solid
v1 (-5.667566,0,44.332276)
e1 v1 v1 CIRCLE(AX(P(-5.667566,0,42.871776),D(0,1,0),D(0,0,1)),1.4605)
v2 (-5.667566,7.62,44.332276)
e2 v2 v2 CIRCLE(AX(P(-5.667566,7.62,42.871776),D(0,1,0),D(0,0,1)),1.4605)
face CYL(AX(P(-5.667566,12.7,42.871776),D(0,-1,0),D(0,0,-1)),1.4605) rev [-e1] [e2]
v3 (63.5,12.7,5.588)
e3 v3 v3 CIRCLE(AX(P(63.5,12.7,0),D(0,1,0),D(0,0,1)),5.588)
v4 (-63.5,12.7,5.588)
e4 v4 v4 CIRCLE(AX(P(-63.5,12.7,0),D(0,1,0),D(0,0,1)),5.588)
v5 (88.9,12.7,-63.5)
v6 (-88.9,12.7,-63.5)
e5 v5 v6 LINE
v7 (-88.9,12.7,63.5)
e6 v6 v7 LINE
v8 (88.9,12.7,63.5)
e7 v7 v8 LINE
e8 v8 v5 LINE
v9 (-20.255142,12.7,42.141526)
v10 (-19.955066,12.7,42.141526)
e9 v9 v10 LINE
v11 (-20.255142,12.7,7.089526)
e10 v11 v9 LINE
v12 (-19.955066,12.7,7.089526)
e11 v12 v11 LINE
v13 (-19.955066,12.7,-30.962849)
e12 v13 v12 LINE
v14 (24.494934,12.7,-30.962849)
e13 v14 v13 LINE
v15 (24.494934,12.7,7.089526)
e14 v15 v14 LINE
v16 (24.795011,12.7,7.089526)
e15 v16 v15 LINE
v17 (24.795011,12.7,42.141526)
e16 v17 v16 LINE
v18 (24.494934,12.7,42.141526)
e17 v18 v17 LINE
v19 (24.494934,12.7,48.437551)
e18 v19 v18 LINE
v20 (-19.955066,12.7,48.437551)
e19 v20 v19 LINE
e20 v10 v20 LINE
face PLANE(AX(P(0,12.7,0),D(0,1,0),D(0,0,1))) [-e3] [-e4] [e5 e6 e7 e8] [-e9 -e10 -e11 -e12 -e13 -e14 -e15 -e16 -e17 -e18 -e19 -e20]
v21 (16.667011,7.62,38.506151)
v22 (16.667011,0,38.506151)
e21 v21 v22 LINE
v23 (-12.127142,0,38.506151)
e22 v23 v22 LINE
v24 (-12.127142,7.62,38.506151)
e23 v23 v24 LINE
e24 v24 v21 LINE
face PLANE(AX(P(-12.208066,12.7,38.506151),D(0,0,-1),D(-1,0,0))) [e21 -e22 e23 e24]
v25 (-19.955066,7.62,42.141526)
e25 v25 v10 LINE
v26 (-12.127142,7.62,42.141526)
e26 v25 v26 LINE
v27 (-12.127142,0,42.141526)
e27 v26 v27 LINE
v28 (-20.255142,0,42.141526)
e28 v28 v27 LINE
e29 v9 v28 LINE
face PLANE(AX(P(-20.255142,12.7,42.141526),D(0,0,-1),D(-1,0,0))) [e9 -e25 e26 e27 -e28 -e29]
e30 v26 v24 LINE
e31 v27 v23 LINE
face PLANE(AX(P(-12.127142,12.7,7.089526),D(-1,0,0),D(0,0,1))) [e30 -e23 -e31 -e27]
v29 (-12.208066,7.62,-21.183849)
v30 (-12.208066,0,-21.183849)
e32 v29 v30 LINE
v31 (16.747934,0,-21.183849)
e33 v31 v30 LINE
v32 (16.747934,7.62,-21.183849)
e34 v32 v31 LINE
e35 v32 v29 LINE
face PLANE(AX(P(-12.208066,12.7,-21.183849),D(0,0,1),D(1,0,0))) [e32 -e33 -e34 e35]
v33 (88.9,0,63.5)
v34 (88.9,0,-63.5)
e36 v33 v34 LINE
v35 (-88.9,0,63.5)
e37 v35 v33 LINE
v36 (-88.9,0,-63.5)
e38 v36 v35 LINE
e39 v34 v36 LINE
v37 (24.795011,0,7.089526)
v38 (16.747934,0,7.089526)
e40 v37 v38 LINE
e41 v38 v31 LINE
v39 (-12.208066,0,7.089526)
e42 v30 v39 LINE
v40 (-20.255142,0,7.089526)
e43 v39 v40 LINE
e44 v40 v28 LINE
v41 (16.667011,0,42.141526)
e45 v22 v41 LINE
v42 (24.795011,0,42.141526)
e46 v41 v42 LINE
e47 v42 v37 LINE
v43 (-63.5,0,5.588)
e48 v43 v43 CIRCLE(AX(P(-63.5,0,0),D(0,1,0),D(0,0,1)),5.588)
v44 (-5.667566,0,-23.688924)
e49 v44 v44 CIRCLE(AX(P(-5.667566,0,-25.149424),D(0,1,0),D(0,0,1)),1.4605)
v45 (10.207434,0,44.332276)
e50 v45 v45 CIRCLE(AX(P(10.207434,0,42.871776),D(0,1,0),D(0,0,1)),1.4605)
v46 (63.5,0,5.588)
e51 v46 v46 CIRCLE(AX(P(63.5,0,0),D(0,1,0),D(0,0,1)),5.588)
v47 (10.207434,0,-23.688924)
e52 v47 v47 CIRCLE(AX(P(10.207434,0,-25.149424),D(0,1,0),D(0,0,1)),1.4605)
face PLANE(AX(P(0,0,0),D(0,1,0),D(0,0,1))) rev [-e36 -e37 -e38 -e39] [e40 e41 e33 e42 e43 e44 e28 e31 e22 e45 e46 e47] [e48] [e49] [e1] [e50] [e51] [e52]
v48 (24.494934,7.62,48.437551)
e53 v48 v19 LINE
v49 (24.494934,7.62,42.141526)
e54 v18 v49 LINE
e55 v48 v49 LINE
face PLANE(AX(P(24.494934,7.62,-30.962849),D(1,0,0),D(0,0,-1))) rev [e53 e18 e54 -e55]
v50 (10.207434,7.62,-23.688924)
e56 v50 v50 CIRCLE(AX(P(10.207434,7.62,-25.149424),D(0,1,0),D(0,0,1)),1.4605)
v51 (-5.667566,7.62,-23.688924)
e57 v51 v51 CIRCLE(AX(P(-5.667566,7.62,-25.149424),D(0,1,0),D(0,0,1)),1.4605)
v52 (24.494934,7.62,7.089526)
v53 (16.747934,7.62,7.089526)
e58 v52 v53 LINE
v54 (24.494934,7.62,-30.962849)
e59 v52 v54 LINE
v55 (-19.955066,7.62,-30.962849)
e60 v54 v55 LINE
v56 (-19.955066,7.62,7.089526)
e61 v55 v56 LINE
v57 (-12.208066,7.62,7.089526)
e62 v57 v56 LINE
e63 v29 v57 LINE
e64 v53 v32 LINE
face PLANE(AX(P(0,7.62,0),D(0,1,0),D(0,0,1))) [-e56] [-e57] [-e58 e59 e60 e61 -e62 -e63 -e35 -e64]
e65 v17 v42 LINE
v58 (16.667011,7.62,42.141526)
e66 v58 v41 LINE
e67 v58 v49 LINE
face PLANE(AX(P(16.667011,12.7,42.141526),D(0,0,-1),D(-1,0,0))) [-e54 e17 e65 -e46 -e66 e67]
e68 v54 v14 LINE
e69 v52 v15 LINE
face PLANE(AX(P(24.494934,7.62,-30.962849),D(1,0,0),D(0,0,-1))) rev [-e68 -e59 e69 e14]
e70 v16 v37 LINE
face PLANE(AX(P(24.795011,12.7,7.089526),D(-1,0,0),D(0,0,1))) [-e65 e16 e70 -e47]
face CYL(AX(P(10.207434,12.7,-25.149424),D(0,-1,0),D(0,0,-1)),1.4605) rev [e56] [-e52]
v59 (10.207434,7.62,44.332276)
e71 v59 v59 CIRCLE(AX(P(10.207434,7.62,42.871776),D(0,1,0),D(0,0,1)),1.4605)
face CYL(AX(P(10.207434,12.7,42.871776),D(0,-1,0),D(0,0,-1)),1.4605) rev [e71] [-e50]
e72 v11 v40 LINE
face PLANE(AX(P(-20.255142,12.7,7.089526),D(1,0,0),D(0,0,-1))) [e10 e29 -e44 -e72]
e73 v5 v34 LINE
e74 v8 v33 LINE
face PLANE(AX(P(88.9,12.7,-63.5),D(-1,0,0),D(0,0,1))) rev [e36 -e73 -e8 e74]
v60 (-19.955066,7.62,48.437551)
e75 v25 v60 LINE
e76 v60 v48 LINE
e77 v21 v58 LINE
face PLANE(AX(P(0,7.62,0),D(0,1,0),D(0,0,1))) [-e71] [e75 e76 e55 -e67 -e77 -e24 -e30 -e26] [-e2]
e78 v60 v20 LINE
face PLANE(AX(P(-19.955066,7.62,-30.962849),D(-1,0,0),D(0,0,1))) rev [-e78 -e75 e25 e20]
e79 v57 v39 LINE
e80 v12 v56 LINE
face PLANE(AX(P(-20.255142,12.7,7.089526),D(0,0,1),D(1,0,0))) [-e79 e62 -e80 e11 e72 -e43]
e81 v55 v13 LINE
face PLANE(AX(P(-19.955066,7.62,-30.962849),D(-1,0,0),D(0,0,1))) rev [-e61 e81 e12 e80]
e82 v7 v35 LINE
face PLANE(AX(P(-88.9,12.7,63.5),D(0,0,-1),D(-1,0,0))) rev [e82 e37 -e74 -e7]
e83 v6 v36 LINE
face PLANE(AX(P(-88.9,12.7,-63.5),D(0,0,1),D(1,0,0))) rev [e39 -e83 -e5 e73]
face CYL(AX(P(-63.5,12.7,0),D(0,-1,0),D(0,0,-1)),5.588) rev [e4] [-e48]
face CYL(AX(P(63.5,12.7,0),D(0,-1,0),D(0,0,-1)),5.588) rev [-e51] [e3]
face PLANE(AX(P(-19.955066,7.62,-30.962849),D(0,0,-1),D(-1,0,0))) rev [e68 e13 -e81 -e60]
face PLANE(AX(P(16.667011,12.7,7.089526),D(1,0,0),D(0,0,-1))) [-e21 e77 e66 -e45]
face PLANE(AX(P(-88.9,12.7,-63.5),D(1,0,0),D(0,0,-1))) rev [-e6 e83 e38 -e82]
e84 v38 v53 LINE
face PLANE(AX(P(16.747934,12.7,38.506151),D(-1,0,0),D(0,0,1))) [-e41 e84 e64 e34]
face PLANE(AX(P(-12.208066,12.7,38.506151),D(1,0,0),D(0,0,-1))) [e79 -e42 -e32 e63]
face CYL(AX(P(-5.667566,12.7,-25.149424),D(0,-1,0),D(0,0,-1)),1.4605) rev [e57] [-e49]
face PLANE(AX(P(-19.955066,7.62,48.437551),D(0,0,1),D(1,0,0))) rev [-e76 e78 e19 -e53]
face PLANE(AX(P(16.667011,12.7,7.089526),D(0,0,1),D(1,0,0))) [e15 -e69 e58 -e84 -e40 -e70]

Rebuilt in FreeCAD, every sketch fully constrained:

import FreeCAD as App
import Part
import Sketcher
Q = App.Units.Quantity


def add_polygon(sketch, points):
    """Adds a closed chain of lines whose ends are joined by coincident constraints."""
    first, n = sketch.GeometryCount, len(points)
    for a, b in zip(points, points[1:] + points[:1]):
        sketch.addGeometry(Part.LineSegment(App.Vector(*a, 0), App.Vector(*b, 0)), False)
    for i in range(n):
        sketch.addConstraint(Sketcher.Constraint("Coincident", first + i, 2, first + (i + 1) % n, 1))

doc = App.newDocument("Part")
body = doc.addObject("PartDesign::Body", "Body")

sketch1 = body.newObject("Sketcher::SketchObject", "Sketch")
sketch1.AttachmentSupport = (doc.getObject("XZ_Plane"), [""])
sketch1.MapMode = "FlatFace"
add_polygon(sketch1, [(-88.9, -63.5), (-88.9, 63.5), (88.9, 63.5), (88.9, -63.5)])
sketch1.addGeometry(Part.Circle(App.Vector(-5.7, 42.9, 0), App.Vector(0, 0, 1), 1.5), False)
sketch1.addGeometry(Part.Circle(App.Vector(10.2, 42.9, 0), App.Vector(0, 0, 1), 1.5), False)
sketch1.addGeometry(Part.Circle(App.Vector(-63.5, 0, 0), App.Vector(0, 0, 1), 5.6), False)
sketch1.addGeometry(Part.Circle(App.Vector(-5.7, -25.1, 0), App.Vector(0, 0, 1), 1.5), False)
add_polygon(sketch1, [(16.7, 38.5), (-12.2, 38.5), (-12.2, -21.2), (16.7, -21.2)])
sketch1.addGeometry(Part.Circle(App.Vector(63.5, 0, 0), App.Vector(0, 0, 1), 5.6), False)
sketch1.addGeometry(Part.Circle(App.Vector(10.2, -25.1, 0), App.Vector(0, 0, 1), 1.5), False)
sketch1.addConstraint(Sketcher.Constraint("Vertical", 0))
sketch1.addConstraint(Sketcher.Constraint("Horizontal", 1))
sketch1.addConstraint(Sketcher.Constraint("Vertical", 2))
sketch1.addConstraint(Sketcher.Constraint("Horizontal", 3))
sketch1.addConstraint(Sketcher.Constraint("Horizontal", 8))
sketch1.addConstraint(Sketcher.Constraint("Vertical", 9))
sketch1.addConstraint(Sketcher.Constraint("Horizontal", 10))
sketch1.addConstraint(Sketcher.Constraint("Vertical", 11))
sketch1.addConstraint(Sketcher.Constraint("Equal", 4, 5))
sketch1.addConstraint(Sketcher.Constraint("Equal", 5, 7))
sketch1.addConstraint(Sketcher.Constraint("Equal", 6, 12))
sketch1.addConstraint(Sketcher.Constraint("Equal", 7, 13))
sketch1.addConstraint(Sketcher.Constraint("Symmetric", 6, 3, 12, 3, -1, 1))
sketch1.addConstraint(Sketcher.Constraint("Symmetric", 0, 2, 2, 2, -1, 1))
sketch1.addConstraint(Sketcher.Constraint("PointOnObject", 6, 3, -1))
sketch1.addConstraint(Sketcher.Constraint("Horizontal", 4, 3, 5, 3))
sketch1.addConstraint(Sketcher.Constraint("Horizontal", 7, 3, 13, 3))
sketch1.addConstraint(Sketcher.Constraint("Vertical", 4, 3, 7, 3))
sketch1.addConstraint(Sketcher.Constraint("Vertical", 5, 3, 13, 3))
sketch1.addConstraint(Sketcher.Constraint("Diameter", 6, Q("0.44 in")))
sketch1.addConstraint(Sketcher.Constraint("DistanceX", 1, 1, 1, 2, Q("7 in")))
sketch1.addConstraint(Sketcher.Constraint("DistanceY", 0, 1, 0, 2, Q("5 in")))
sketch1.addConstraint(Sketcher.Constraint("Diameter", 4, Q("0.115 in")))
sketch1.addConstraint(Sketcher.Constraint("DistanceX", 6, 3, 12, 3, Q("5 in")))
sketch1.addConstraint(Sketcher.Constraint("DistanceX", 8, 2, 8, 1, Q("1.14 in")))
sketch1.addConstraint(Sketcher.Constraint("DistanceY", 9, 2, 9, 1, Q("2.35 in")))
sketch1.addConstraint(Sketcher.Constraint("DistanceX", 4, 3, 5, 3, Q("0.625 in")))
sketch1.addConstraint(Sketcher.Constraint("DistanceY", 7, 3, 4, 3, Q("2.678 in")))
sketch1.addConstraint(Sketcher.Constraint("DistanceY", 8, 2, 4, 3, Q("0.171875 in")))
sketch1.addConstraint(Sketcher.Constraint("DistanceX", 8, 2, 4, 3, Q("0.2575 in")))
sketch1.addConstraint(Sketcher.Constraint("DistanceY", -1, 1, 8, 2, Q("38.506151 mm")))
sketch1.addConstraint(Sketcher.Constraint("DistanceX", 4, 3, -1, 1, Q("5.667566 mm")))
pad1 = body.newObject("PartDesign::Pad", "Pad")
pad1.Profile = sketch1
pad1.Length = Q("0.5 in")
pad1.Reversed = True

sketch2 = body.newObject("Sketcher::SketchObject", "Sketch001")
sketch2.AttachmentSupport = (doc.getObject("XZ_Plane"), [""])
sketch2.MapMode = "FlatFace"
add_polygon(sketch2, [(-20, 7), (-20, 42), (-12, 42), (-12, 7)])
add_polygon(sketch2, [(17, 7), (17, 42), (25, 42), (25, 7)])
sketch2.addConstraint(Sketcher.Constraint("Vertical", 0))
sketch2.addConstraint(Sketcher.Constraint("Horizontal", 1))
sketch2.addConstraint(Sketcher.Constraint("Vertical", 2))
sketch2.addConstraint(Sketcher.Constraint("Horizontal", 3))
sketch2.addConstraint(Sketcher.Constraint("Vertical", 4))
sketch2.addConstraint(Sketcher.Constraint("Horizontal", 5))
sketch2.addConstraint(Sketcher.Constraint("Vertical", 6))
sketch2.addConstraint(Sketcher.Constraint("Horizontal", 7))
sketch2.addConstraint(Sketcher.Constraint("Horizontal", 1, 2, 4, 2))
sketch2.addConstraint(Sketcher.Constraint("Horizontal", 3, 2, 6, 2))
sketch2.addConstraint(Sketcher.Constraint("Equal", 3, 5))
sketch2.addConstraint(Sketcher.Constraint("DistanceX", 1, 1, 1, 2, Q("0.32 in")))
sketch2.addConstraint(Sketcher.Constraint("DistanceY", 0, 1, 0, 2, Q("1.38 in")))
sketch2.addConstraint(Sketcher.Constraint("DistanceX", -1, 1, 4, 2, Q("16.667011 mm")))
sketch2.addConstraint(Sketcher.Constraint("DistanceX", 0, 2, -1, 1, Q("20.255142 mm")))
sketch2.addConstraint(Sketcher.Constraint("DistanceY", -1, 1, 0, 2, Q("42.141526 mm")))
pocket1 = body.newObject("PartDesign::Pocket", "Pocket")
pocket1.Profile = sketch2
pocket1.Type = "ThroughAll"

sketch3 = body.newObject("Sketcher::SketchObject", "Sketch002")
sketch3.AttachmentSupport = (doc.getObject("XZ_Plane"), [""])
sketch3.MapMode = "FlatFace"
sketch3.AttachmentOffset = App.Placement(App.Vector(0, 0, -0.5 * 25.4), App.Rotation())
add_polygon(sketch3, [(-20, -31), (-20, 48), (24, 48), (24, -31)])
sketch3.addConstraint(Sketcher.Constraint("Vertical", 0))
sketch3.addConstraint(Sketcher.Constraint("Horizontal", 1))
sketch3.addConstraint(Sketcher.Constraint("Vertical", 2))
sketch3.addConstraint(Sketcher.Constraint("Horizontal", 3))
sketch3.addConstraint(Sketcher.Constraint("DistanceX", 1, 1, 1, 2, Q("1.75 in")))
sketch3.addConstraint(Sketcher.Constraint("DistanceY", 0, 1, 0, 2, Q("3.126 in")))
sketch3.addConstraint(Sketcher.Constraint("DistanceY", -1, 1, 0, 2, Q("48.437551 mm")))
sketch3.addConstraint(Sketcher.Constraint("DistanceX", 0, 2, -1, 1, Q("19.955066 mm")))
pocket2 = body.newObject("PartDesign::Pocket", "Pocket001")
pocket2.Profile = sketch3
pocket2.Length = Q("0.2 in")
pocket2.Reversed = True

doc.recompute()
